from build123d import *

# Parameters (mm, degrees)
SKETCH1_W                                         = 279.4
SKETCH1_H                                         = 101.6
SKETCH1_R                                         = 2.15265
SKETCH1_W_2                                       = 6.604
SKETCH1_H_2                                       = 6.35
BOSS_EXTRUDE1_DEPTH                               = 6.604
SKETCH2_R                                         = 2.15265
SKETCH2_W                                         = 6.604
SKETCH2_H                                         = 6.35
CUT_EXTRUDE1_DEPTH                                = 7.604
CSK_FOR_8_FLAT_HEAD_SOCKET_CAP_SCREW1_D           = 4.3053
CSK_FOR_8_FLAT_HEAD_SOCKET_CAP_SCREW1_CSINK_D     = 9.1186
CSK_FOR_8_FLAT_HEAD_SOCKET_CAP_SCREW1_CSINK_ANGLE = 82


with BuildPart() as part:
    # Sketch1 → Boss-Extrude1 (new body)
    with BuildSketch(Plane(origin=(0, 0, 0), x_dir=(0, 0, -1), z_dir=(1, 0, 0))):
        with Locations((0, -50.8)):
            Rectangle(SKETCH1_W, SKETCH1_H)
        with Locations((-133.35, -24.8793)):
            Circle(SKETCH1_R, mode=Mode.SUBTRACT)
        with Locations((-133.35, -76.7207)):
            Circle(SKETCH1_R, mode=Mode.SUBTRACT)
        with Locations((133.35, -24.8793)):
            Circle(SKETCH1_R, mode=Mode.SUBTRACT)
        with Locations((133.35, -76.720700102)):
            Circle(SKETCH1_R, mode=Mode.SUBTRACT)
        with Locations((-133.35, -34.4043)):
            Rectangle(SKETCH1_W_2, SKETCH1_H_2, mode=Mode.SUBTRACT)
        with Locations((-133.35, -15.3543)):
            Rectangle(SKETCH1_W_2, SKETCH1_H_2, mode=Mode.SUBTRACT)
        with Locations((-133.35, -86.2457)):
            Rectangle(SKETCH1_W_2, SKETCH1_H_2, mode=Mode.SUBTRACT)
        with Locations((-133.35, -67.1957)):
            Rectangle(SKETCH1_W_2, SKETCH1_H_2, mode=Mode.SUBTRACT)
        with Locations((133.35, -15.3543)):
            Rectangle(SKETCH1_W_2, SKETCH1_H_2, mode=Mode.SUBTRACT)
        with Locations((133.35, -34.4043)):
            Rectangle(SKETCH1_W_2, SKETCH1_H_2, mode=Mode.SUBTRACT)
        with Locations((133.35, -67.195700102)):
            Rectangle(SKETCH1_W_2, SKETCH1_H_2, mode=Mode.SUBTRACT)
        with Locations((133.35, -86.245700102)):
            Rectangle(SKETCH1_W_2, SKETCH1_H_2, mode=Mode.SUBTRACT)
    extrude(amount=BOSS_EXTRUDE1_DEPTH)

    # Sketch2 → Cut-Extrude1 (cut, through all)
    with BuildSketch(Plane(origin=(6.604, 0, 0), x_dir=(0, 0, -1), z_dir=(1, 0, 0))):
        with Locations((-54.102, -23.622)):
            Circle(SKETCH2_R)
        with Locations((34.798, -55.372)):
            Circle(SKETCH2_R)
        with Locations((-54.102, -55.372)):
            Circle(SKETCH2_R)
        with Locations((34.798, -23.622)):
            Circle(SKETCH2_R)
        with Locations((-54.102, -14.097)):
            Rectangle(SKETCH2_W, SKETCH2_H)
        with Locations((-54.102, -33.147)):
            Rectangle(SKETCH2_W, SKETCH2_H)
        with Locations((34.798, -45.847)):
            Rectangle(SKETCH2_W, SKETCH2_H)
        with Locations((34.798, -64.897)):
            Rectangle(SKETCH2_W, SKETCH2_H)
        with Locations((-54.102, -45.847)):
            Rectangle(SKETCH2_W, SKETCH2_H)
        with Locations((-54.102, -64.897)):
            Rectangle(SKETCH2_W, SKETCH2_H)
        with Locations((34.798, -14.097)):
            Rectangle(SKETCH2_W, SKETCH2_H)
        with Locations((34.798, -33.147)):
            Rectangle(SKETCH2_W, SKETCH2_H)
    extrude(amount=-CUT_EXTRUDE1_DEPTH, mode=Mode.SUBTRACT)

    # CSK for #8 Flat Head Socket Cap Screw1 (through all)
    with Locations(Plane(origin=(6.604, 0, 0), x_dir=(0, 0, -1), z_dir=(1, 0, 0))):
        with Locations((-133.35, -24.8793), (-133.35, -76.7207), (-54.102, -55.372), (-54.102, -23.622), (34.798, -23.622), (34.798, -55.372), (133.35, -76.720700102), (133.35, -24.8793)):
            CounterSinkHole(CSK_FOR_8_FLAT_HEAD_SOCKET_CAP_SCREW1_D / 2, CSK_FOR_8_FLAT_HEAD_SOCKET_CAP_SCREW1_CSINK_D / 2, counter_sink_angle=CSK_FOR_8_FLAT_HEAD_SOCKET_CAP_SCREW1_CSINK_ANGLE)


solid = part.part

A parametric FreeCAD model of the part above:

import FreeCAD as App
import Part
import Sketcher
from FreeCAD import Vector
Q = App.Units.Quantity


def add_polygon(sketch, points):
    """Adds a closed chain of lines whose ends are joined by coincident constraints."""
    first, n = sketch.GeometryCount, len(points)
    for a, b in zip(points, points[1:] + points[:1]):
        sketch.addGeometry(Part.LineSegment(App.Vector(*a, 0), App.Vector(*b, 0)), False)
    for i in range(n):
        sketch.addConstraint(Sketcher.Constraint("Coincident", first + i, 2, first + (i + 1) % n, 1))

doc = App.newDocument("Part")
body = doc.addObject("PartDesign::Body", "Body")

# Sketch on YZ plane
sketch1 = body.newObject("Sketcher::SketchObject", "Sketch")
sketch1.AttachmentSupport = (doc.getObject("YZ_Plane"), [""])
sketch1.MapMode = "FlatFace"
add_polygon(sketch1, [(0, 139.7), (-101.6, 139.7), (-101.6, -139.7), (0, -139.7)])  # lines 0-3
add_polygon(sketch1, [(-89.4207, 130.048), (-89.4207, 136.652), (-83.0707, 136.652), (-83.0707, 130.048)])  # lines 4-7
sketch1.addGeometry(Part.Circle(Vector(-76.7207, 133.35, 0), Vector(0, 0, 1), 2.15265), False)  # 8
add_polygon(sketch1, [(-70.3707, 130.048), (-70.3707, 136.652), (-64.0207, 136.652), (-64.0207, 130.048)])  # lines 9-12
add_polygon(sketch1, [(-89.4207, -136.652), (-89.4207, -130.048), (-83.0707, -130.048), (-83.0707, -136.652)])  # lines 13-16
sketch1.addGeometry(Part.Circle(Vector(-76.7207, -133.35, 0), Vector(0, 0, 1), 2.15265), False)  # 17
add_polygon(sketch1, [(-70.3707, -136.652), (-70.3707, -130.048), (-64.0207, -130.048), (-64.0207, -136.652)])  # lines 18-21
add_polygon(sketch1, [(-37.5793, 130.048), (-37.5793, 136.652), (-31.2293, 136.652), (-31.2293, 130.048)])  # lines 22-25
sketch1.addGeometry(Part.Circle(Vector(-24.8793, 133.35, 0), Vector(0, 0, 1), 2.15265), False)  # 26
add_polygon(sketch1, [(-18.5293, 130.048), (-18.5293, 136.652), (-12.1793, 136.652), (-12.1793, 130.048)])  # lines 27-30
add_polygon(sketch1, [(-37.5793, -136.652), (-37.5793, -130.048), (-31.2293, -130.048), (-31.2293, -136.652)])  # lines 31-34
sketch1.addGeometry(Part.Circle(Vector(-24.8793, -133.35, 0), Vector(0, 0, 1), 2.15265), False)  # 35
add_polygon(sketch1, [(-18.5293, -136.652), (-18.5293, -130.048), (-12.1793, -130.048), (-12.1793, -136.652)])  # lines 36-39
sketch1.addConstraint([
    Sketcher.Constraint("Horizontal", 0),
    Sketcher.Constraint("Vertical", 1),
    Sketcher.Constraint("Horizontal", 2),
    Sketcher.Constraint("Vertical", 3),
    Sketcher.Constraint("Vertical", 4),
    Sketcher.Constraint("Horizontal", 5),
    Sketcher.Constraint("Vertical", 6),
    Sketcher.Constraint("Horizontal", 7),
    Sketcher.Constraint("Vertical", 9),
    Sketcher.Constraint("Horizontal", 10),
    Sketcher.Constraint("Vertical", 11),
    Sketcher.Constraint("Horizontal", 12),
    Sketcher.Constraint("Vertical", 13),
    Sketcher.Constraint("Horizontal", 14),
    Sketcher.Constraint("Vertical", 15),
    Sketcher.Constraint("Horizontal", 16),
    Sketcher.Constraint("Vertical", 18),
    Sketcher.Constraint("Horizontal", 19),
    Sketcher.Constraint("Vertical", 20),
    Sketcher.Constraint("Horizontal", 21),
    Sketcher.Constraint("Vertical", 22),
    Sketcher.Constraint("Horizontal", 23),
    Sketcher.Constraint("Vertical", 24),
    Sketcher.Constraint("Horizontal", 25),
    Sketcher.Constraint("Vertical", 27),
    Sketcher.Constraint("Horizontal", 28),
    Sketcher.Constraint("Vertical", 29),
    Sketcher.Constraint("Horizontal", 30),
    Sketcher.Constraint("Vertical", 31),
    Sketcher.Constraint("Horizontal", 32),
    Sketcher.Constraint("Vertical", 33),
    Sketcher.Constraint("Horizontal", 34),
    Sketcher.Constraint("Vertical", 36),
    Sketcher.Constraint("Horizontal", 37),
    Sketcher.Constraint("Vertical", 38),
    Sketcher.Constraint("Horizontal", 39),
    Sketcher.Constraint("Equal", 8, 17),
    Sketcher.Constraint("Equal", 17, 26),
    Sketcher.Constraint("Equal", 26, 35),
    Sketcher.Constraint("Symmetric", 2, 2, 3, 2, -1, 1),
    Sketcher.Constraint("Symmetric", 8, 3, 17, 3, -1),
    Sketcher.Constraint("Symmetric", 26, 3, 35, 3, -1),
    Sketcher.Constraint("Symmetric", 7, 2, 13, 2, -1),
    Sketcher.Constraint("Symmetric", 5, 2, 15, 2, -1),
    Sketcher.Constraint("Symmetric", 12, 2, 18, 2, -1),
    Sketcher.Constraint("Symmetric", 10, 2, 20, 2, -1),
    Sketcher.Constraint("Symmetric", 25, 2, 31, 2, -1),
    Sketcher.Constraint("Symmetric", 23, 2, 33, 2, -1),
    Sketcher.Constraint("Symmetric", 30, 2, 36, 2, -1),
    Sketcher.Constraint("Symmetric", 28, 2, 38, 2, -1),
    Sketcher.Constraint("Horizontal", 8, 3, 26, 3),
    Sketcher.Constraint("Horizontal", 5, 2, 9, 2),
    Sketcher.Constraint("Horizontal", 7, 2, 11, 2),
    Sketcher.Constraint("Horizontal", 10, 2, 22, 2),
    Sketcher.Constraint("Horizontal", 12, 2, 24, 2),
    Sketcher.Constraint("Horizontal", 23, 2, 27, 2),
    Sketcher.Constraint("Horizontal", 25, 2, 29, 2),
    Sketcher.Constraint("Equal", 7, 10),
    Sketcher.Constraint("Equal", 21, 23),
    Sketcher.Constraint("Equal", 25, 28),
    Sketcher.Constraint("DistanceX", 0, 2, 0, 1, Q("4 in")),
    Sketcher.Constraint("DistanceY", 1, 2, 1, 1, Q("11 in")),
    Sketcher.Constraint("DistanceX", 4, 2, 10, 2, Q("1 in")),
    Sketcher.Constraint("Diameter", 8, Q("0.1695 in")),
    Sketcher.Constraint("DistanceX", 5, 1, 5, 2, Q("0.25 in")),
    Sketcher.Constraint("DistanceY", 4, 1, 4, 2, Q("0.26 in")),
    Sketcher.Constraint("DistanceY", 17, 3, 8, 3, Q("10.5 in")),
    Sketcher.Constraint("DistanceX", 4, 2, 8, 3, Q("0.5 in")),
    Sketcher.Constraint("DistanceX", 22, 2, 26, 3, Q("0.5 in")),
    Sketcher.Constraint("DistanceX", 23, 2, 27, 2, Q("0.5 in")),
    Sketcher.Constraint("DistanceY", -1, 1, 4, 2, Q("5.38 in")),
    Sketcher.Constraint("DistanceX", 8, 3, 26, 3, Q("2.041 in")),
    Sketcher.Constraint("DistanceX", 8, 3, -1, 1, Q("3.0205 in")),
])
pad1 = body.newObject("PartDesign::Pad", "Pad")
pad1.Profile = sketch1
pad1.Length = Q("0.26 in")

# Sketch on YZ plane
sketch2 = body.newObject("Sketcher::SketchObject", "Sketch001")
sketch2.AttachmentSupport = (doc.getObject("YZ_Plane"), [""])
sketch2.MapMode = "FlatFace"
sketch2.AttachmentOffset = App.Placement(Vector(0, 0, 0.26 * 25.4), App.Rotation())
sketch2.addGeometry(Part.Circle(Vector(-23.622, 54.102, 0), Vector(0, 0, 1), 2.15265), False)  # 0
sketch2.addGeometry(Part.Circle(Vector(-55.372, -34.798, 0), Vector(0, 0, 1), 2.15265), False)  # 1
sketch2.addGeometry(Part.Circle(Vector(-55.372, 54.102, 0), Vector(0, 0, 1), 2.15265), False)  # 2
sketch2.addGeometry(Part.Circle(Vector(-23.622, -34.798, 0), Vector(0, 0, 1), 2.15265), False)  # 3
add_polygon(sketch2, [(-10.922, 57.404), (-17.272, 57.404), (-17.272, 50.8), (-10.922, 50.8)])  # lines 4-7
add_polygon(sketch2, [(-29.972, 57.404), (-36.322, 57.404), (-36.322, 50.8), (-29.972, 50.8)])  # lines 8-11
add_polygon(sketch2, [(-42.672, -31.496), (-49.022, -31.496), (-49.022, -38.1), (-42.672, -38.1)])  # lines 12-15
add_polygon(sketch2, [(-61.722, -31.496), (-68.072, -31.496), (-68.072, -38.1), (-61.722, -38.1)])  # lines 16-19
add_polygon(sketch2, [(-42.672, 57.404), (-49.022, 57.404), (-49.022, 50.8), (-42.672, 50.8)])  # lines 20-23
add_polygon(sketch2, [(-61.722, 57.404), (-68.072, 57.404), (-68.072, 50.8), (-61.722, 50.8)])  # lines 24-27
add_polygon(sketch2, [(-10.922, -31.496), (-17.272, -31.496), (-17.272, -38.1), (-10.922, -38.1)])  # lines 28-31
add_polygon(sketch2, [(-29.972, -31.496), (-36.322, -31.496), (-36.322, -38.1), (-29.972, -38.1)])  # lines 32-35
sketch2.addConstraint([
    Sketcher.Constraint("Horizontal", 4),
    Sketcher.Constraint("Vertical", 5),
    Sketcher.Constraint("Horizontal", 6),
    Sketcher.Constraint("Vertical", 7),
    Sketcher.Constraint("Horizontal", 8),
    Sketcher.Constraint("Vertical", 9),
    Sketcher.Constraint("Horizontal", 10),
    Sketcher.Constraint("Vertical", 11),
    Sketcher.Constraint("Horizontal", 12),
    Sketcher.Constraint("Vertical", 13),
    Sketcher.Constraint("Horizontal", 14),
    Sketcher.Constraint("Vertical", 15),
    Sketcher.Constraint("Horizontal", 16),
    Sketcher.Constraint("Vertical", 17),
    Sketcher.Constraint("Horizontal", 18),
    Sketcher.Constraint("Vertical", 19),
    Sketcher.Constraint("Horizontal", 20),
    Sketcher.Constraint("Vertical", 21),
    Sketcher.Constraint("Horizontal", 22),
    Sketcher.Constraint("Vertical", 23),
    Sketcher.Constraint("Horizontal", 24),
    Sketcher.Constraint("Vertical", 25),
    Sketcher.Constraint("Horizontal", 26),
    Sketcher.Constraint("Vertical", 27),
    Sketcher.Constraint("Horizontal", 28),
    Sketcher.Constraint("Vertical", 29),
    Sketcher.Constraint("Horizontal", 30),
    Sketcher.Constraint("Vertical", 31),
    Sketcher.Constraint("Horizontal", 32),
    Sketcher.Constraint("Vertical", 33),
    Sketcher.Constraint("Horizontal", 34),
    Sketcher.Constraint("Vertical", 35),
    Sketcher.Constraint("Equal", 0, 1),
    Sketcher.Constraint("Equal", 1, 2),
    Sketcher.Constraint("Equal", 2, 3),
    Sketcher.Constraint("Horizontal", 0, 3, 2, 3),
    Sketcher.Constraint("Horizontal", 1, 3, 3, 3),
    Sketcher.Constraint("Horizontal", 7, 2, 8, 2),
    Sketcher.Constraint("Horizontal", 6, 2, 9, 2),
    Sketcher.Constraint("Horizontal", 15, 2, 16, 2),
    Sketcher.Constraint("Horizontal", 14, 2, 17, 2),
    Sketcher.Constraint("Horizontal", 11, 2, 20, 2),
    Sketcher.Constraint("Horizontal", 10, 2, 21, 2),
    Sketcher.Constraint("Horizontal", 23, 2, 24, 2),
    Sketcher.Constraint("Horizontal", 22, 2, 25, 2),
    Sketcher.Constraint("Horizontal", 19, 2, 28, 2),
    Sketcher.Constraint("Horizontal", 18, 2, 29, 2),
    Sketcher.Constraint("Horizontal", 31, 2, 32, 2),
    Sketcher.Constraint("Horizontal", 30, 2, 33, 2),
    Sketcher.Constraint("Vertical", 1, 3, 2, 3),
    Sketcher.Constraint("Vertical", 0, 3, 3, 3),
    Sketcher.Constraint("Vertical", 13, 2, 20, 2),
    Sketcher.Constraint("Vertical", 15, 2, 22, 2),
    Sketcher.Constraint("Vertical", 17, 2, 24, 2),
    Sketcher.Constraint("Vertical", 19, 2, 26, 2),
    Sketcher.Constraint("Vertical", 5, 2, 28, 2),
    Sketcher.Constraint("Vertical", 7, 2, 30, 2),
    Sketcher.Constraint("Vertical", 9, 2, 32, 2),
    Sketcher.Constraint("Vertical", 11, 2, 34, 2),
    Sketcher.Constraint("Equal", 6, 8),
    Sketcher.Constraint("Equal", 10, 12),
    Sketcher.Constraint("Equal", 14, 16),
    Sketcher.Constraint("Equal", 11, 13),
    Sketcher.Constraint("DistanceY", -1, 1, 5, 2, Q("2 in")),
    Sketcher.Constraint("DistanceX", 8, 2, 7, 2, Q("1 in")),
    Sketcher.Constraint("DistanceX", 12, 2, 3, 3, Q("1 in")),
    Sketcher.Constraint("DistanceX", 16, 2, 15, 2, Q("1 in")),
    Sketcher.Constraint("DistanceX", 15, 2, 28, 2, Q("1 in")),
    Sketcher.Constraint("Diameter", 0, Q("0.1695 in")),
    Sketcher.Constraint("DistanceX", 4, 2, 4, 1, Q("0.25 in")),
    Sketcher.Constraint("DistanceY", 5, 2, 5, 1, Q("0.26 in")),
    Sketcher.Constraint("DistanceY", 13, 2, -1, 1, Q("1.5 in")),
    Sketcher.Constraint("DistanceY", 1, 3, 0, 3, Q("3.5 in")),
    Sketcher.Constraint("DistanceX", 2, 3, 4, 2, Q("1.5 in")),
    Sketcher.Constraint("DistanceX", 0, 3, -1, 1, Q("0.93 in")),
    Sketcher.Constraint("DistanceY", -1, 1, 0, 3, Q("2.13 in")),
])
pocket1 = body.newObject("PartDesign::Pocket", "Pocket")
pocket1.Profile = sketch2
pocket1.Type = "ThroughAll"

# Sketch on YZ plane
sketch3 = body.newObject("Sketcher::SketchObject", "Sketch002")
sketch3.AttachmentSupport = (doc.getObject("YZ_Plane"), [""])
sketch3.MapMode = "FlatFace"
sketch3.AttachmentOffset = App.Placement(Vector(0, 0, 0.26 * 25.4), App.Rotation())
sketch3.addGeometry([
    Part.Circle(Vector(-24.8793, 133.35, 0), Vector(0, 0, 1), 2.15265),  # 0
    Part.Circle(Vector(-76.7207, 133.35, 0), Vector(0, 0, 1), 2.15265),  # 1
    Part.Circle(Vector(-55.372, 54.102, 0), Vector(0, 0, 1), 2.15265),  # 2
    Part.Circle(Vector(-23.622, 54.102, 0), Vector(0, 0, 1), 2.15265),  # 3
    Part.Circle(Vector(-23.622, -34.798, 0), Vector(0, 0, 1), 2.15265),  # 4
    Part.Circle(Vector(-55.372, -34.798, 0), Vector(0, 0, 1), 2.15265),  # 5
    Part.Circle(Vector(-76.7207, -133.35, 0), Vector(0, 0, 1), 2.15265),  # 6
    Part.Circle(Vector(-24.8793, -133.35, 0), Vector(0, 0, 1), 2.15265),  # 7
], False)
sketch3.addConstraint([
    Sketcher.Constraint("Equal", 0, 1),
    Sketcher.Constraint("Equal", 1, 2),
    Sketcher.Constraint("Equal", 2, 3),
    Sketcher.Constraint("Equal", 3, 4),
    Sketcher.Constraint("Equal", 4, 5),
    Sketcher.Constraint("Equal", 5, 6),
    Sketcher.Constraint("Equal", 6, 7),
    Sketcher.Constraint("Symmetric", 1, 3, 6, 3, -1),
    Sketcher.Constraint("Symmetric", 0, 3, 7, 3, -1),
    Sketcher.Constraint("Horizontal", 0, 3, 1, 3),
    Sketcher.Constraint("Horizontal", 2, 3, 3, 3),
    Sketcher.Constraint("Horizontal", 4, 3, 5, 3),
    Sketcher.Constraint("Vertical", 3, 3, 4, 3),
    Sketcher.Constraint("Vertical", 2, 3, 5, 3),
    Sketcher.Constraint("Diameter", 0, Q("0.1695 in")),
    Sketcher.Constraint("DistanceY", 4, 3, 3, 3, Q("3.5 in")),
    Sketcher.Constraint("DistanceY", 6, 3, 1, 3, Q("10.5 in")),
    Sketcher.Constraint("DistanceX", 2, 3, -1, 1, Q("2.18 in")),
    Sketcher.Constraint("DistanceY", -1, 1, 2, 3, Q("2.13 in")),
    Sketcher.Constraint("DistanceX", 3, 3, -1, 1, Q("0.93 in")),
    Sketcher.Constraint("DistanceX", 1, 3, 0, 3, Q("2.041 in")),
    Sketcher.Constraint("DistanceX", 0, 3, -1, 1, Q("0.9795 in")),
])
doc.recompute()
hole = body.newObject("PartDesign::Hole", "Hole")
hole.Profile = sketch3
hole.ThreadType = "None"
hole.Diameter = Q("0.1695 in")
hole.DepthType = "ThroughAll"
hole.HoleCutType = "Countersink"
hole.HoleCutDiameter = Q("0.359 in")
hole.HoleCutCountersinkAngle = 82

doc.recompute()
